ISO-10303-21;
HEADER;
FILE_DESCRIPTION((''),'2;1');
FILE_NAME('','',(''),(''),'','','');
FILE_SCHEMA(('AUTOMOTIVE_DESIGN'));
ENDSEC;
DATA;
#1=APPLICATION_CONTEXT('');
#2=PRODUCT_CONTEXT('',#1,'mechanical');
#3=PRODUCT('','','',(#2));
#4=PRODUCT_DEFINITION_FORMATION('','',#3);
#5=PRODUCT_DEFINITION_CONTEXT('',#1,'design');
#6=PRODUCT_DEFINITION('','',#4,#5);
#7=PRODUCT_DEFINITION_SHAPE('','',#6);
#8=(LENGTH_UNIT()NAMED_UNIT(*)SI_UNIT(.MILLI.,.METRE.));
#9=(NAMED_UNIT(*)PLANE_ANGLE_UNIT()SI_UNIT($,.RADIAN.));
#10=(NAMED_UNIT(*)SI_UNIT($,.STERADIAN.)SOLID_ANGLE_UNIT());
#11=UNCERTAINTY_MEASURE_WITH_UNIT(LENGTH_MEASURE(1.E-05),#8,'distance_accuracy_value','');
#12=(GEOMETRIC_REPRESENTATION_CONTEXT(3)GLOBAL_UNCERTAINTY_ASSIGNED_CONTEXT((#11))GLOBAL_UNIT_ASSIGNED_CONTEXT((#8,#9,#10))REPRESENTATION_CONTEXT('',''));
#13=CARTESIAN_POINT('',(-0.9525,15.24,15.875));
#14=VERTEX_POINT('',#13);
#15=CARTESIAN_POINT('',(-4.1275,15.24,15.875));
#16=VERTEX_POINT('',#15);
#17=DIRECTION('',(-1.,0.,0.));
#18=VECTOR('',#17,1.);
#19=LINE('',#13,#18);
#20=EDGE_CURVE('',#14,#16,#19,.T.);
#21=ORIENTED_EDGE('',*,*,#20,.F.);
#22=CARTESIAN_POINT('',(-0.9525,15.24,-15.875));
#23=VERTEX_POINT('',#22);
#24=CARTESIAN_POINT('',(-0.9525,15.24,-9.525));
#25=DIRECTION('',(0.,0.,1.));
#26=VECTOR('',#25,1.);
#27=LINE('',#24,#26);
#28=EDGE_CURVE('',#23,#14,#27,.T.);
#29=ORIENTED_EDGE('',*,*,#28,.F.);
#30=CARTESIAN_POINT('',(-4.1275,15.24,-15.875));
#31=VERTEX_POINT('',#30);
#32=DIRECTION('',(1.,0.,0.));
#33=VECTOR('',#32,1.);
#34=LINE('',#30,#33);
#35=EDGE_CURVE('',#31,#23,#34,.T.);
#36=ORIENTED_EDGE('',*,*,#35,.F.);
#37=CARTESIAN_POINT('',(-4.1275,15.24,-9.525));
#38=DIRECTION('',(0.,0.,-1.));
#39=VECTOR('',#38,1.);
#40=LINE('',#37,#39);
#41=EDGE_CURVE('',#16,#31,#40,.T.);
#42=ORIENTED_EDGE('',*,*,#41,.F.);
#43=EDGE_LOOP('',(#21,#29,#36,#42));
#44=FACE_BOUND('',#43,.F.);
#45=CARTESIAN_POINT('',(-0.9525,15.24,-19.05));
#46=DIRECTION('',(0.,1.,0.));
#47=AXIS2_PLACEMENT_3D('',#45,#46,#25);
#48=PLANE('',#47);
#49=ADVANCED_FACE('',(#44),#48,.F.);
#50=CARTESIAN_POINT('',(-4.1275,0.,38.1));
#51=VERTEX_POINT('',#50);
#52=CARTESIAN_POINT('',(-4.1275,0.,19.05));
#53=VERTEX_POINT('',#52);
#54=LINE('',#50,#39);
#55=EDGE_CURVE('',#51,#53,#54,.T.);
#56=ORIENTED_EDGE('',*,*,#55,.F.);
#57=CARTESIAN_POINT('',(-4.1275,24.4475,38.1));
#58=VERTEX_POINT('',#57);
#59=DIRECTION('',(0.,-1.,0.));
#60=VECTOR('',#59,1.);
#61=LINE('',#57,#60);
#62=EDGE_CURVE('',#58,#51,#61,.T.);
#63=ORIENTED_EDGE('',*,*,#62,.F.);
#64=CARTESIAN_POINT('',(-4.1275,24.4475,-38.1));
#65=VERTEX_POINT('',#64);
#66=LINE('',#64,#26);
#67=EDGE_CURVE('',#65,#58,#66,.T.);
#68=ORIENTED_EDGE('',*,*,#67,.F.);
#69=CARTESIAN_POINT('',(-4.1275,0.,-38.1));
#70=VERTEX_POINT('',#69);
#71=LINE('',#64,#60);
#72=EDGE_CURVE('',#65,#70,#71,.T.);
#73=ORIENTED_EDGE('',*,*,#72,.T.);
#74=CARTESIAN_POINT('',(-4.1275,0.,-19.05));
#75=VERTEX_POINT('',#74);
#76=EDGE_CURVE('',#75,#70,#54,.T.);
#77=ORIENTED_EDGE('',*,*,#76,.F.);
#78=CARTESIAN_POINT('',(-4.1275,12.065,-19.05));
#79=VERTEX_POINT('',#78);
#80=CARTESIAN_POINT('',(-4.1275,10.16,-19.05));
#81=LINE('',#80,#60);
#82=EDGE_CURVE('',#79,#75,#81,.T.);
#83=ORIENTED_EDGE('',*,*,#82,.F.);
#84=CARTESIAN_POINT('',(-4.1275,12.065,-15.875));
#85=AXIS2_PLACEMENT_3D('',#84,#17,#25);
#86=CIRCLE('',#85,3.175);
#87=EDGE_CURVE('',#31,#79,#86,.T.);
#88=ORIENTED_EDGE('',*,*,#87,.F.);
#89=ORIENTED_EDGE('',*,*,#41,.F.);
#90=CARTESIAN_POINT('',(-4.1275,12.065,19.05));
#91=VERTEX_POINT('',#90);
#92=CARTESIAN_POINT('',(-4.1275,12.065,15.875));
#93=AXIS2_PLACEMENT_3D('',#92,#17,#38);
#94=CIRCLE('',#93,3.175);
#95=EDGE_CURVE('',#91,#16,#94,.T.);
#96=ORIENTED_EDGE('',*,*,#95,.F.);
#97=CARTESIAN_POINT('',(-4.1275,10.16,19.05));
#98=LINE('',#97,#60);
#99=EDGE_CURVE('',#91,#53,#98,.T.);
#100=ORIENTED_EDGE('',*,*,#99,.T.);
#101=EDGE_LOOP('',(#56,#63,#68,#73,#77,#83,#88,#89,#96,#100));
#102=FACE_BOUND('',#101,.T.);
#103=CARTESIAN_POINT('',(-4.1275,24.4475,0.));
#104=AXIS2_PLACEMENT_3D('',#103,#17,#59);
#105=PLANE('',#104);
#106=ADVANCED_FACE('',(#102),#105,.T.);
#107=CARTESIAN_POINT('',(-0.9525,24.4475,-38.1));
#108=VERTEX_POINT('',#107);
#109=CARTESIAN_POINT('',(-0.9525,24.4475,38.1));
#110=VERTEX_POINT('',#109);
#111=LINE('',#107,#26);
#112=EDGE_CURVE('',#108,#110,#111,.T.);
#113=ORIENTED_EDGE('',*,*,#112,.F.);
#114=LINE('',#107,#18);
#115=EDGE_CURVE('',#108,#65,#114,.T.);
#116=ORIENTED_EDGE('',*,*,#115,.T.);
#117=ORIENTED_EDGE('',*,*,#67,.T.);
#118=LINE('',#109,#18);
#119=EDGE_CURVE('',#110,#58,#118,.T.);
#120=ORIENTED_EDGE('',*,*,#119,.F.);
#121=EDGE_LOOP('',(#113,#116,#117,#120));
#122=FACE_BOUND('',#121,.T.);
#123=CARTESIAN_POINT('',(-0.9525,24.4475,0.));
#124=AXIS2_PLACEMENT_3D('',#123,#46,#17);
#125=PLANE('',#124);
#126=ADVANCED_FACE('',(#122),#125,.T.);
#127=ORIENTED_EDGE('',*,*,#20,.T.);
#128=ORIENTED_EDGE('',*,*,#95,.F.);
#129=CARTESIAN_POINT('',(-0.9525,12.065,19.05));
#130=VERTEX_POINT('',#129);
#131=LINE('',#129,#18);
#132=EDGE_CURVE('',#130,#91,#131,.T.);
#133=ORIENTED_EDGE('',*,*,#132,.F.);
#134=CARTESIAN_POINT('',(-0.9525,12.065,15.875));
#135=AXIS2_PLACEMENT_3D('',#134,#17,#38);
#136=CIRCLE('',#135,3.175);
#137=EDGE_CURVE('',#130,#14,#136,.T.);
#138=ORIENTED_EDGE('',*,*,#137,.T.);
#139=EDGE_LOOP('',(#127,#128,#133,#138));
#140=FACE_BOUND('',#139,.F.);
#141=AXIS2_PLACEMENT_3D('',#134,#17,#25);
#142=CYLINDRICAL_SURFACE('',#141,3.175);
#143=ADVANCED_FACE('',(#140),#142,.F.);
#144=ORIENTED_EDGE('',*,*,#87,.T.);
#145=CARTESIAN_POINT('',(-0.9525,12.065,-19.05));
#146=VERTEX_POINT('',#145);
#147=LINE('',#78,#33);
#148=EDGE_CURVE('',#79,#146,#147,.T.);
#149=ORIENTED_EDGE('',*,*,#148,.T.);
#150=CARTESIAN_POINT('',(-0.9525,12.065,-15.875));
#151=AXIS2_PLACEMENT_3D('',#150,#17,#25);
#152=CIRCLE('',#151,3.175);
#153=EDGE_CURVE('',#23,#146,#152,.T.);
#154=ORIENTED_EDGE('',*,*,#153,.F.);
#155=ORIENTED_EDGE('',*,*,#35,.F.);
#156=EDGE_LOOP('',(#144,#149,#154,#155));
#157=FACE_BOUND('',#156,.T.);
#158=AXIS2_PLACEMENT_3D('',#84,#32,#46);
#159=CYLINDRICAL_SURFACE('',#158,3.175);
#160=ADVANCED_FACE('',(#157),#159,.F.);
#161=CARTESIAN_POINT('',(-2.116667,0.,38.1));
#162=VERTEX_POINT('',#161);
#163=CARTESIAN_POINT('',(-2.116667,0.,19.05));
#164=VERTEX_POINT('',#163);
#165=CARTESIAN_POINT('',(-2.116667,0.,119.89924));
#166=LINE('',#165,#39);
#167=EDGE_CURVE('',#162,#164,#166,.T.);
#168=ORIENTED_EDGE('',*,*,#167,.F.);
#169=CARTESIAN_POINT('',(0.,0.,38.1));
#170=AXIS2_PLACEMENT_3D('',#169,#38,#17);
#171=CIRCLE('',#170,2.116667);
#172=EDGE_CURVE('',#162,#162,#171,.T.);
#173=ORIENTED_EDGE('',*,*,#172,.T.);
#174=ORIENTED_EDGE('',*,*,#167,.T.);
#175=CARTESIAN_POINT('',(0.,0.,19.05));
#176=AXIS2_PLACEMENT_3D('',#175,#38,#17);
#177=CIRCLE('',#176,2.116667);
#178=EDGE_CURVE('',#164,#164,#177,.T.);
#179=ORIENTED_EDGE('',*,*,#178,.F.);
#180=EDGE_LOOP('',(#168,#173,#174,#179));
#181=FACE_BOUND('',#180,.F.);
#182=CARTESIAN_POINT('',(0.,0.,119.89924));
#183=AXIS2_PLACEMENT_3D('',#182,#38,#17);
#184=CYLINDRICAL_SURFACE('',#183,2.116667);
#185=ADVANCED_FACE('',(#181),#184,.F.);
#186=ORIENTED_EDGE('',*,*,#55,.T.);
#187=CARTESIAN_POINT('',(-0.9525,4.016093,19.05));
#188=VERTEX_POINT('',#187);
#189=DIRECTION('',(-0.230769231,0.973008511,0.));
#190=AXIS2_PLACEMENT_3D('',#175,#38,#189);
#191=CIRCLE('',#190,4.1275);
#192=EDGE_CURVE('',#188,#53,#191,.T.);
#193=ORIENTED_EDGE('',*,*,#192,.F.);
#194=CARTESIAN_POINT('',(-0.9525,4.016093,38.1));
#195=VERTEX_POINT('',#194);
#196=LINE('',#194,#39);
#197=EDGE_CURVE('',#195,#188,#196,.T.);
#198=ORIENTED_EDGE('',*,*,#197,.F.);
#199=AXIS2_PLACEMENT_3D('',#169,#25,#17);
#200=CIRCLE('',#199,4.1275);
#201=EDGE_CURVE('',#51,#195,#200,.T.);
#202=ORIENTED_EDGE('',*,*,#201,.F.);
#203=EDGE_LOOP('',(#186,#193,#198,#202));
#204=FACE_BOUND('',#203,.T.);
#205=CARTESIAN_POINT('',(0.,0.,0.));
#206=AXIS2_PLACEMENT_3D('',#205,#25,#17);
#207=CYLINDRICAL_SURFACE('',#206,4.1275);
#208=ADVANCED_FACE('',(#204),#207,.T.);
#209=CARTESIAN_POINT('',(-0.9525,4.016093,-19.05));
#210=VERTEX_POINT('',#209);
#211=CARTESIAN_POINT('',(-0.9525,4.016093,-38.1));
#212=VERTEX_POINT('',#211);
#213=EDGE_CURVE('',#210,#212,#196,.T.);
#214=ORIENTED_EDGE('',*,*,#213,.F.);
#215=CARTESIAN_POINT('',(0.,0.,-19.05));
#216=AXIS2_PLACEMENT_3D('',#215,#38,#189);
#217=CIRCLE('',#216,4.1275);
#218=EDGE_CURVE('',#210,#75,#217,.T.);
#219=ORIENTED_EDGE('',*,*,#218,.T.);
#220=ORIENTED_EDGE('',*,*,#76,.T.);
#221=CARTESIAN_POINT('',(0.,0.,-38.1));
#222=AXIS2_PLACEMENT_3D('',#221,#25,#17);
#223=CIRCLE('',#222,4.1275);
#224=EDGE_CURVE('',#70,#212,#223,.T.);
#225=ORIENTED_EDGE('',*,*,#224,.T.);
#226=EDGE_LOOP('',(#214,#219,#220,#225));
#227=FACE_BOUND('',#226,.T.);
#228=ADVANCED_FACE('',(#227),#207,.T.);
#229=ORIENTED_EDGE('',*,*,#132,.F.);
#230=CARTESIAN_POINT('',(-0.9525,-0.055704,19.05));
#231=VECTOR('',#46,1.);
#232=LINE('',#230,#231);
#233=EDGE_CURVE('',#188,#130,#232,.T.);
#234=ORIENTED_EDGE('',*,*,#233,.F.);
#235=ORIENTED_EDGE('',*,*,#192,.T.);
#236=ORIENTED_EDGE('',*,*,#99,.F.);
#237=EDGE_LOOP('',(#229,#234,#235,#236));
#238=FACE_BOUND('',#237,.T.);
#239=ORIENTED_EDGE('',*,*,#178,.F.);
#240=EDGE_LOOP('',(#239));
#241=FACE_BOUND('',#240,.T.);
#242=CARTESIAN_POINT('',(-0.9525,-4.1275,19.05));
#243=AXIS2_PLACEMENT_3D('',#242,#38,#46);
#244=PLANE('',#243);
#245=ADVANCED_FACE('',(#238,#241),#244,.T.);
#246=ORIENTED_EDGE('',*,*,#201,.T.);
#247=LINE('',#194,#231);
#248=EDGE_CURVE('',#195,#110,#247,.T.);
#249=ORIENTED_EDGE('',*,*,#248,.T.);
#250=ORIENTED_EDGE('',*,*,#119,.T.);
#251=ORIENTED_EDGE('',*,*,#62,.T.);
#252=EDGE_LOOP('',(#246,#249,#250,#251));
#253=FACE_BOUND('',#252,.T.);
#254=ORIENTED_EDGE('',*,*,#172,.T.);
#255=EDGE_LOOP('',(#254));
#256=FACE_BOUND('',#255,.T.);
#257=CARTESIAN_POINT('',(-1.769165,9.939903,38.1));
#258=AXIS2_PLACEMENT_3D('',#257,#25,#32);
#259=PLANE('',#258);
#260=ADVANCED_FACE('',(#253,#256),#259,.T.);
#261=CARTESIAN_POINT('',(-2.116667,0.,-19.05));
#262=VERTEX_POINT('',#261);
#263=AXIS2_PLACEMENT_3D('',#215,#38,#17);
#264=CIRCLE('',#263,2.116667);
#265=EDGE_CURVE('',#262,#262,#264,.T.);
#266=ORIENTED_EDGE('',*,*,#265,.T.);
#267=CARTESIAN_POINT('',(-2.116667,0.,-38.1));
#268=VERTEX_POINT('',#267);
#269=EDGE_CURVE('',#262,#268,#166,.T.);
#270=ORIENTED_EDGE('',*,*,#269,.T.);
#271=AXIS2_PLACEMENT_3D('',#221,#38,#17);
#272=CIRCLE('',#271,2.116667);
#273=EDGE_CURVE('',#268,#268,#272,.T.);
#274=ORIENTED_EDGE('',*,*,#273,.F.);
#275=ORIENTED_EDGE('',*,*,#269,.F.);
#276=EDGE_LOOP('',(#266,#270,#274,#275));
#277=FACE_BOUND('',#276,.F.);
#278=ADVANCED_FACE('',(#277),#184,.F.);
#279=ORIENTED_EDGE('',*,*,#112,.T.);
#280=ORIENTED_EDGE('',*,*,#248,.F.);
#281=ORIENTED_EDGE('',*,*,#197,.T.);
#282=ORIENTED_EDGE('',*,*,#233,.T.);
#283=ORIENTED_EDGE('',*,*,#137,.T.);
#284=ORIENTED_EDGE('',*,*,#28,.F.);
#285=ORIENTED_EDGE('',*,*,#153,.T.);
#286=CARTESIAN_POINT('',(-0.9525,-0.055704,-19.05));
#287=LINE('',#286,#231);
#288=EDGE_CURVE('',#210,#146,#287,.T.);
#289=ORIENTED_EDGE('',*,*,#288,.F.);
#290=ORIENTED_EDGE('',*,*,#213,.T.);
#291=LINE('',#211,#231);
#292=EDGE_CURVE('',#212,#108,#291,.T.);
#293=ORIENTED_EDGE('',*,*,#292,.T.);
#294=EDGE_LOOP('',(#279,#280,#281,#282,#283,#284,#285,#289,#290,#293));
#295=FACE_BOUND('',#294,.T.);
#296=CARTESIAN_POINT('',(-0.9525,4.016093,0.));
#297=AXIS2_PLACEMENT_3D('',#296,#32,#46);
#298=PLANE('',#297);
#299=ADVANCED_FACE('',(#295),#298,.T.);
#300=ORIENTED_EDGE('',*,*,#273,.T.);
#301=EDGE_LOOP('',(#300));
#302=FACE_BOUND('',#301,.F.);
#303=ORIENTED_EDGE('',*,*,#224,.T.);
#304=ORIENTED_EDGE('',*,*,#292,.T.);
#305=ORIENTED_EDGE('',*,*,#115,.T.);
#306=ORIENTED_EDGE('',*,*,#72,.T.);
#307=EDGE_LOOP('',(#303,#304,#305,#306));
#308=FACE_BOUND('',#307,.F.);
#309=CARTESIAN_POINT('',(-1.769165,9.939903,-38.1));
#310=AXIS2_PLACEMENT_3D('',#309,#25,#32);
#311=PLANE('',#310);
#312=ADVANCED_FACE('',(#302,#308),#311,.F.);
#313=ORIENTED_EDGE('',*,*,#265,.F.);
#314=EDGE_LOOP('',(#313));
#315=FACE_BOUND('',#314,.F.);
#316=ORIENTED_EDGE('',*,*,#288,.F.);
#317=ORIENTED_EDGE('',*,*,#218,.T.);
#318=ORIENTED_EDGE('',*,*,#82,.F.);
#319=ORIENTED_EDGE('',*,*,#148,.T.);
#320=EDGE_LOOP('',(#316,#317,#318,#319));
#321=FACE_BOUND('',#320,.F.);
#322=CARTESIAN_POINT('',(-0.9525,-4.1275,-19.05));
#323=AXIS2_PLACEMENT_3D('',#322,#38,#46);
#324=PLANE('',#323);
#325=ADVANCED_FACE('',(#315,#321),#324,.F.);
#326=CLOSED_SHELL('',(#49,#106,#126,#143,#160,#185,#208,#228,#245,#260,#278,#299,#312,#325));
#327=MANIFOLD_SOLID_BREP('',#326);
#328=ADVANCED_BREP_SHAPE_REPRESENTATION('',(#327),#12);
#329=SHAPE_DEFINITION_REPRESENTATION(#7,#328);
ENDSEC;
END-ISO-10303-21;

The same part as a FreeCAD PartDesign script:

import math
import FreeCAD as App
import Part
import Sketcher
Q = App.Units.Quantity


def edges_at(feature, points):
    """Names of the edges that pass closest to the given points."""
    edges = feature.Shape.Edges
    near = lambda p: min(range(len(edges)), key=lambda i: edges[i].distToShape(Part.Vertex(*p))[0])
    return sorted({f"Edge{near(p) + 1}" for p in points})

doc = App.newDocument("Part")
params = doc.addObject("Spreadsheet::Sheet", "Params")
for row, (alias, value) in enumerate([
    ("sketch1_width", "0.125 in"),
    ("pad1_length", "3 in"),
    ("hole_diameter", "4.233333 mm"),
    ("sketch3_height", "1.5 in"),
    ("pocket1_length", "1 in"),
    ("fillet_radius", "0.125 in"),
], start=1):
    params.set(f"A{row}", alias)
    params.set(f"B{row}", "=" + value)
    params.setAlias(f"B{row}", alias)

body = doc.addObject("PartDesign::Body", "Body")

sketch1 = body.newObject("Sketcher::SketchObject", "Sketch")
sketch1.AttachmentSupport = (doc.getObject("XY_Plane"), [""])
sketch1.MapMode = "FlatFace"
sketch1.addGeometry(Part.LineSegment(App.Vector(-1, 4, 0), App.Vector(-1, 24.4, 0)), False)
sketch1.addGeometry(Part.LineSegment(App.Vector(-1, 24.4, 0), App.Vector(-4.1, 24.4, 0)), False)
sketch1.addGeometry(Part.LineSegment(App.Vector(-4.1, 24.4, 0), App.Vector(-4.1, 0, 0)), False)
sketch1.addGeometry(Part.ArcOfCircle(Part.Circle(App.Vector(0, 0, 0), App.Vector(0, 0, 1), 4.1), math.radians(180), math.radians(463)), False)
sketch1.addConstraint(Sketcher.Constraint("Coincident", 0, 2, 1, 1))
sketch1.addConstraint(Sketcher.Constraint("Coincident", 1, 2, 2, 1))
sketch1.addConstraint(Sketcher.Constraint("Tangent", 2, 2, 3, 1))
sketch1.addConstraint(Sketcher.Constraint("Coincident", 3, 2, 0, 1))
sketch1.addConstraint(Sketcher.Constraint("Vertical", 0))
sketch1.addConstraint(Sketcher.Constraint("Horizontal", 1))
sketch1.addConstraint(Sketcher.Constraint("Vertical", 2))
sketch1.addConstraint(Sketcher.Constraint("Coincident", 3, 3, -1, 1))
sketch1.addConstraint(Sketcher.Constraint("Radius", 3, Q("0.1625 in")))
sketch1.addConstraint(Sketcher.Constraint("DistanceX", 1, 2, 1, 1, Q("0.125 in")))
sketch1.addConstraint(Sketcher.Constraint("DistanceY", 2, 2, 2, 1, Q("0.9625 in")))
sketch1.setExpression("Constraints[9]", "Params.sketch1_width")
pad1 = body.newObject("PartDesign::Pad", "Pad")
pad1.Profile = sketch1
pad1.setExpression("Length", "Params.pad1_length")
pad1.Midplane = True

sketch2 = body.newObject("Sketcher::SketchObject", "Sketch001")
sketch2.AttachmentSupport = (doc.getObject("XY_Plane"), [""])
sketch2.MapMode = "FlatFace"
sketch2.AttachmentOffset = App.Placement(App.Vector(0, 0, 1.5 * 25.4), App.Rotation())
sketch2.addGeometry(Part.Circle(App.Vector(0, 0, 0), App.Vector(0, 0, 1), 2.1), False)
sketch2.addConstraint(Sketcher.Constraint("Coincident", 0, 3, -1, 1))
sketch2.addConstraint(Sketcher.Constraint("Diameter", 0, 4.233333))
doc.recompute()
hole = body.newObject("PartDesign::Hole", "Hole")
hole.Profile = sketch2
hole.ThreadType = "None"
hole.setExpression("Diameter", "Params.hole_diameter")
hole.DepthType = "ThroughAll"

sketch3 = body.newObject("Sketcher::SketchObject", "Sketch002")
sketch3.AttachmentSupport = (doc.getObject("YZ_Plane"), [""])
sketch3.MapMode = "FlatFace"
sketch3.AttachmentOffset = App.Placement(App.Vector(0, 0, -0.0375 * 25.4), App.Rotation())
sketch3.addGeometry(Part.LineSegment(App.Vector(-4, 19, 0), App.Vector(-4, -19, 0)), False)
sketch3.addGeometry(Part.LineSegment(App.Vector(-4, -19, 0), App.Vector(15, -19, 0)), False)
sketch3.addGeometry(Part.LineSegment(App.Vector(15, -19, 0), App.Vector(15, 19, 0)), False)
sketch3.addGeometry(Part.LineSegment(App.Vector(15, 19, 0), App.Vector(-4, 19, 0)), False)
sketch3.addConstraint(Sketcher.Constraint("Coincident", 0, 2, 1, 1))
sketch3.addConstraint(Sketcher.Constraint("Coincident", 1, 2, 2, 1))
sketch3.addConstraint(Sketcher.Constraint("Coincident", 2, 2, 3, 1))
sketch3.addConstraint(Sketcher.Constraint("Coincident", 3, 2, 0, 1))
sketch3.addConstraint(Sketcher.Constraint("Vertical", 0))
sketch3.addConstraint(Sketcher.Constraint("Horizontal", 1))
sketch3.addConstraint(Sketcher.Constraint("Vertical", 2))
sketch3.addConstraint(Sketcher.Constraint("Horizontal", 3))
sketch3.addConstraint(Sketcher.Constraint("DistanceY", 0, 2, 0, 1, Q("1.5 in")))
sketch3.addConstraint(Sketcher.Constraint("DistanceX", -1, 1, 1, 2, Q("0.6 in")))
sketch3.addConstraint(Sketcher.Constraint("DistanceY", 0, 2, -1, 1, Q("0.75 in")))
sketch3.addConstraint(Sketcher.Constraint("DistanceX", 1, 1, 1, 2, Q("0.7625 in")))
sketch3.setExpression("Constraints[8]", "Params.sketch3_height")
pocket1 = body.newObject("PartDesign::Pocket", "Pocket")
pocket1.Profile = sketch3
pocket1.setExpression("Length", "Params.pocket1_length")
pocket1.Midplane = True
doc.recompute()

fillet = body.newObject("PartDesign::Fillet", "Fillet")
fillet.Base = (pocket1, edges_at(pocket1, [(-2.54, 15.24, 19.05), (-2.54, 15.24, -19.05)]))
fillet.setExpression("Radius", "Params.fillet_radius")

doc.recompute()
